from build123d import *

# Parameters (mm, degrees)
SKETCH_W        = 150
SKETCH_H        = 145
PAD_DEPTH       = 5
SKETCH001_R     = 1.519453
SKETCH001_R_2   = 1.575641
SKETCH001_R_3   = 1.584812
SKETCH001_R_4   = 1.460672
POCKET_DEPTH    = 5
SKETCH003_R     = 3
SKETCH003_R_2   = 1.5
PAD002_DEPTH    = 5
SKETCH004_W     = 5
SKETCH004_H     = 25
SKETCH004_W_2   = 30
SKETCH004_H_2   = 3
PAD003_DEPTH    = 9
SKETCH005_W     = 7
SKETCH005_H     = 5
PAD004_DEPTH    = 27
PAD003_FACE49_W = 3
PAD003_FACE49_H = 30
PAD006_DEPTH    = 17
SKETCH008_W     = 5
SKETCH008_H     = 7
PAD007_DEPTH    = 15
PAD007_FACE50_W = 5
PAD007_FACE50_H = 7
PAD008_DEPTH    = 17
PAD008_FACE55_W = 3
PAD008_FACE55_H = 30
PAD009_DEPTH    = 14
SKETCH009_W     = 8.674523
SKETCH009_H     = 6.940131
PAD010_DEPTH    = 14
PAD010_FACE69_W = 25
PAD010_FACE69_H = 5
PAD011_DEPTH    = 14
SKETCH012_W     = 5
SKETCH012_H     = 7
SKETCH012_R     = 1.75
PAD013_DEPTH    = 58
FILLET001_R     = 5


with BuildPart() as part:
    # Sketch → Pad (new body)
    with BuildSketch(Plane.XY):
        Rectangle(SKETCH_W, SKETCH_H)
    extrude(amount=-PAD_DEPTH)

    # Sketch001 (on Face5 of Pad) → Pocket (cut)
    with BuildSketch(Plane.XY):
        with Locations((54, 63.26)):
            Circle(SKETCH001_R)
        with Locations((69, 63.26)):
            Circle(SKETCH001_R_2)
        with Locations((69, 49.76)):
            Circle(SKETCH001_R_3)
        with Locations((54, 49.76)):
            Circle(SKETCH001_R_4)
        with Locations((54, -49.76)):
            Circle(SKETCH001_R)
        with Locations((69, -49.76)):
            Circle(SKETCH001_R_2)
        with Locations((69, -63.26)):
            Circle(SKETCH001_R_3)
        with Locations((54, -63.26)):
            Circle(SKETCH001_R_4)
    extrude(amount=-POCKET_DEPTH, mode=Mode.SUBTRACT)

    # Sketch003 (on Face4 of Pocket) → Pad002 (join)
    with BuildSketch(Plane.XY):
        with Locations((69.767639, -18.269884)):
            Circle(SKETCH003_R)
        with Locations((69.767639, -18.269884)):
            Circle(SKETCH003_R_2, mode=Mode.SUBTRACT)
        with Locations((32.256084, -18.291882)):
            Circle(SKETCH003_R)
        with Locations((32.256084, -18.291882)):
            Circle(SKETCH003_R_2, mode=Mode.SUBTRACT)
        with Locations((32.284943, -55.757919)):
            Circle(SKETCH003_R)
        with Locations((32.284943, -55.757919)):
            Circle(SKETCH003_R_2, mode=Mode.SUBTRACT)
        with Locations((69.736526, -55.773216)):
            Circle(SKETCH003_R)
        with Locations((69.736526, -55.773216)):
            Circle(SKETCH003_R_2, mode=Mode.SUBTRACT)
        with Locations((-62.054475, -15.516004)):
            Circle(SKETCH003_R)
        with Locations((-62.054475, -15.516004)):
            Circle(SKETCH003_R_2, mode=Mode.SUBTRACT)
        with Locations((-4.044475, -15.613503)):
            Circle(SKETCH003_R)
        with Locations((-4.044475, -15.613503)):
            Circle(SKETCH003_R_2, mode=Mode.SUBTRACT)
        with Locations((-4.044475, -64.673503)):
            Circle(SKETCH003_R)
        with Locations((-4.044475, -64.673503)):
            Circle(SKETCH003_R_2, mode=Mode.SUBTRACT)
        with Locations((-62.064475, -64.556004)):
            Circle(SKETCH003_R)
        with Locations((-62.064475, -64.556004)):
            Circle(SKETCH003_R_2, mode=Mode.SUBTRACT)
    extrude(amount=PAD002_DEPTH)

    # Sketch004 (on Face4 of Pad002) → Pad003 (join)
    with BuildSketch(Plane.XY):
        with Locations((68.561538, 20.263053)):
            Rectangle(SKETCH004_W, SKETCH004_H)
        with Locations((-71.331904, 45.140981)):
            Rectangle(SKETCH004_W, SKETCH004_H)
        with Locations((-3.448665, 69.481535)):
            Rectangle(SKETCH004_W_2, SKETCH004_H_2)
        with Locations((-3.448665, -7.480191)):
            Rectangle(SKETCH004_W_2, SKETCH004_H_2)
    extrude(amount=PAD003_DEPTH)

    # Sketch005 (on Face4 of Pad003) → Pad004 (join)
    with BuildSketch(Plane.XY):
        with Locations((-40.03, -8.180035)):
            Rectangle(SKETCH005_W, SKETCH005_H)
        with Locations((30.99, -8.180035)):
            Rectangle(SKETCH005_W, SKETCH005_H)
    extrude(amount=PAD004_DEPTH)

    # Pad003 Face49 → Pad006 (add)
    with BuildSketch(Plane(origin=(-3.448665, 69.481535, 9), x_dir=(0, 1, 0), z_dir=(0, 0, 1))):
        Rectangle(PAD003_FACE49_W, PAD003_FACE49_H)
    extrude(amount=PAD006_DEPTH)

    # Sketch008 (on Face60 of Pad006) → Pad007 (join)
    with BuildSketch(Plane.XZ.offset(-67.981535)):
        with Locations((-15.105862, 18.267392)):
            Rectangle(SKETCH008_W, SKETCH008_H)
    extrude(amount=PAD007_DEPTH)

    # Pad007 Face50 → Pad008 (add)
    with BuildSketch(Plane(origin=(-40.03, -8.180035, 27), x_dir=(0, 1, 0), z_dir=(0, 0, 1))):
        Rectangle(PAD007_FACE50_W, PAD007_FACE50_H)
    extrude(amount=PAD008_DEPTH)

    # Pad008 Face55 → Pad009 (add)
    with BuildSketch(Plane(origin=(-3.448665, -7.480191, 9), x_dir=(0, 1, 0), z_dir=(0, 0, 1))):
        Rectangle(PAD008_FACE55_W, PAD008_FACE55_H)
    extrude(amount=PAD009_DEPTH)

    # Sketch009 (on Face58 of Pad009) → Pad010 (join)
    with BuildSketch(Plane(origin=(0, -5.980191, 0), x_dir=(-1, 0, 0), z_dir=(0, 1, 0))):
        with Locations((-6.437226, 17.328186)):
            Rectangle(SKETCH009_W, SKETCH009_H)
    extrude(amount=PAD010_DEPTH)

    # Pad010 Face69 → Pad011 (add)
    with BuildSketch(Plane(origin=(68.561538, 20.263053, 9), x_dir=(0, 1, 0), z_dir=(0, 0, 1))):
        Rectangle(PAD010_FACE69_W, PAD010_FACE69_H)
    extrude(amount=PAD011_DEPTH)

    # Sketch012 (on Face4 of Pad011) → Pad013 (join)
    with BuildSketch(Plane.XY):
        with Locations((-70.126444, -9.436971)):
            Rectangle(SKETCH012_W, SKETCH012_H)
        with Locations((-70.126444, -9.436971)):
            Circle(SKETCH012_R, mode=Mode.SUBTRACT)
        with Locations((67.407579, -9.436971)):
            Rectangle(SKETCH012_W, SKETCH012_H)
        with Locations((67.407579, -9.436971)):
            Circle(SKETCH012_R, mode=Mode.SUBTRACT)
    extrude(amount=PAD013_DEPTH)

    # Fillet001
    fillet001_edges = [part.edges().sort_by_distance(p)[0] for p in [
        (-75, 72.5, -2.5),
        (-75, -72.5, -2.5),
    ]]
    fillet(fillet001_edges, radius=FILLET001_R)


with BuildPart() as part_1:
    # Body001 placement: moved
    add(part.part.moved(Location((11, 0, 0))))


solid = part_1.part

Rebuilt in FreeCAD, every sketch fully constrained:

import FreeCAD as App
import Part
import Sketcher
Q = App.Units.Quantity


def edges_at(feature, points):
    """Names of the edges that pass closest to the given points."""
    edges = feature.Shape.Edges
    near = lambda p: min(range(len(edges)), key=lambda i: edges[i].distToShape(Part.Vertex(*p))[0])
    return sorted({f"Edge{near(p) + 1}" for p in points})


def add_polygon(sketch, points):
    """Adds a closed chain of lines whose ends are joined by coincident constraints."""
    first, n = sketch.GeometryCount, len(points)
    for a, b in zip(points, points[1:] + points[:1]):
        sketch.addGeometry(Part.LineSegment(App.Vector(*a, 0), App.Vector(*b, 0)), False)
    for i in range(n):
        sketch.addConstraint(Sketcher.Constraint("Coincident", first + i, 2, first + (i + 1) % n, 1))

doc = App.newDocument("Part")
body = doc.addObject("PartDesign::Body", "Body")

# Sketch on XY plane
sketch1 = body.newObject("Sketcher::SketchObject", "Sketch")
sketch1.AttachmentSupport = (doc.getObject("XY_Plane"), [""])
sketch1.MapMode = "FlatFace"
add_polygon(sketch1, [(-75, 72.5), (-75, -72.5), (75, -72.5), (75, 72.5)])  # lines 0-3
sketch1.addConstraint([
    Sketcher.Constraint("Vertical", 0),
    Sketcher.Constraint("Horizontal", 1),
    Sketcher.Constraint("Vertical", 2),
    Sketcher.Constraint("Horizontal", 3),
    Sketcher.Constraint("Symmetric", 0, 2, 2, 2, -1, 1),
    Sketcher.Constraint("DistanceX", 1, 1, 1, 2, Q("150 mm")),
    Sketcher.Constraint("DistanceY", 0, 2, 0, 1, Q("145 mm")),
])
pad1 = body.newObject("PartDesign::Pad", "Pad")
pad1.Profile = sketch1
pad1.Length = 5
pad1.Reversed = True

# Sketch on XY plane
sketch2 = body.newObject("Sketcher::SketchObject", "Sketch001")
sketch2.AttachmentSupport = (doc.getObject("XY_Plane"), [""])
sketch2.MapMode = "FlatFace"
sketch2.addGeometry([
    Part.Circle(App.Vector(54, 63.26, 0), App.Vector(0, 0, 1), 1.519453),  # 0
    Part.Circle(App.Vector(69, 63.26, 0), App.Vector(0, 0, 1), 1.575641),  # 1
    Part.Circle(App.Vector(69, 49.76, 0), App.Vector(0, 0, 1), 1.584812),  # 2
    Part.Circle(App.Vector(54, 49.76, 0), App.Vector(0, 0, 1), 1.460672),  # 3
    Part.Circle(App.Vector(54, -49.76, 0), App.Vector(0, 0, 1), 1.519453),  # 4
    Part.Circle(App.Vector(69, -49.76, 0), App.Vector(0, 0, 1), 1.575641),  # 5
    Part.Circle(App.Vector(69, -63.26, 0), App.Vector(0, 0, 1), 1.584812),  # 6
    Part.Circle(App.Vector(54, -63.26, 0), App.Vector(0, 0, 1), 1.460672),  # 7
], False)
sketch2.addConstraint([
    Sketcher.Constraint("Equal", 0, 4),
    Sketcher.Constraint("Equal", 1, 5),
    Sketcher.Constraint("Equal", 2, 6),
    Sketcher.Constraint("Equal", 3, 7),
    Sketcher.Constraint("Symmetric", 3, 3, 4, 3, -1),
    Sketcher.Constraint("Symmetric", 2, 3, 5, 3, -1),
    Sketcher.Constraint("Symmetric", 1, 3, 6, 3, -1),
    Sketcher.Constraint("Symmetric", 0, 3, 7, 3, -1),
    Sketcher.Constraint("Horizontal", 0, 3, 1, 3),
    Sketcher.Constraint("Horizontal", 2, 3, 3, 3),
    Sketcher.Constraint("Vertical", 1, 3, 2, 3),
    Sketcher.Constraint("Vertical", 0, 3, 3, 3),
    Sketcher.Constraint("DistanceX", -1, 1, 0, 3, Q("54 mm")),
    Sketcher.Constraint("DistanceX", -1, 1, 1, 3, Q("69 mm")),
    Sketcher.Constraint("DistanceY", 2, 3, 1, 3, Q("13.5 mm")),
    Sketcher.Constraint("DistanceY", -1, 1, 0, 3, Q("63.26 mm")),
    Sketcher.Constraint("Diameter", 0, Q("3.038906 mm")),
    Sketcher.Constraint("Diameter", 1, Q("3.151282 mm")),
    Sketcher.Constraint("Diameter", 2, Q("3.169624 mm")),
    Sketcher.Constraint("Diameter", 3, Q("2.921344 mm")),
])
pocket1 = body.newObject("PartDesign::Pocket", "Pocket")
pocket1.Profile = sketch2
pocket1.Length = 5

# Sketch on XY plane
sketch3 = body.newObject("Sketcher::SketchObject", "Sketch002")
sketch3.AttachmentSupport = (doc.getObject("XY_Plane"), [""])
sketch3.MapMode = "FlatFace"
sketch3.addGeometry([
    Part.Circle(App.Vector(69.767639, -18.269884, 0), App.Vector(0, 0, 1), 3),  # 0
    Part.Circle(App.Vector(69.767639, -18.269884, 0), App.Vector(0, 0, 1), 1.5),  # 1
    Part.Circle(App.Vector(32.256084, -18.291882, 0), App.Vector(0, 0, 1), 3),  # 2
    Part.Circle(App.Vector(32.256084, -18.291882, 0), App.Vector(0, 0, 1), 1.5),  # 3
    Part.Circle(App.Vector(32.284943, -55.757919, 0), App.Vector(0, 0, 1), 3),  # 4
    Part.Circle(App.Vector(32.284943, -55.757919, 0), App.Vector(0, 0, 1), 1.5),  # 5
    Part.Circle(App.Vector(69.736526, -55.773216, 0), App.Vector(0, 0, 1), 3),  # 6
    Part.Circle(App.Vector(69.736526, -55.773216, 0), App.Vector(0, 0, 1), 1.5),  # 7
    Part.Circle(App.Vector(-62.054475, -15.516004, 0), App.Vector(0, 0, 1), 3),  # 8
    Part.Circle(App.Vector(-62.054475, -15.516004, 0), App.Vector(0, 0, 1), 1.5),  # 9
    Part.Circle(App.Vector(-4.044475, -15.613503, 0), App.Vector(0, 0, 1), 3),  # 10
    Part.Circle(App.Vector(-4.044475, -15.613503, 0), App.Vector(0, 0, 1), 1.5),  # 11
    Part.Circle(App.Vector(-4.044475, -64.673503, 0), App.Vector(0, 0, 1), 3),  # 12
    Part.Circle(App.Vector(-4.044475, -64.673503, 0), App.Vector(0, 0, 1), 1.5),  # 13
    Part.Circle(App.Vector(-62.064475, -64.556004, 0), App.Vector(0, 0, 1), 3),  # 14
    Part.Circle(App.Vector(-62.064475, -64.556004, 0), App.Vector(0, 0, 1), 1.5),  # 15
], False)
sketch3.addConstraint([
    Sketcher.Constraint("Coincident", 1, 3, 0, 3),
    Sketcher.Constraint("Coincident", 3, 3, 2, 3),
    Sketcher.Constraint("Coincident", 5, 3, 4, 3),
    Sketcher.Constraint("Coincident", 7, 3, 6, 3),
    Sketcher.Constraint("Coincident", 9, 3, 8, 3),
    Sketcher.Constraint("Coincident", 11, 3, 10, 3),
    Sketcher.Constraint("Coincident", 13, 3, 12, 3),
    Sketcher.Constraint("Coincident", 15, 3, 14, 3),
    Sketcher.Constraint("Equal", 0, 2),
    Sketcher.Constraint("Equal", 1, 3),
    Sketcher.Constraint("Equal", 2, 4),
    Sketcher.Constraint("Equal", 3, 5),
    Sketcher.Constraint("Equal", 4, 6),
    Sketcher.Constraint("Equal", 5, 7),
    Sketcher.Constraint("Equal", 6, 8),
    Sketcher.Constraint("Equal", 7, 9),
    Sketcher.Constraint("Equal", 8, 10),
    Sketcher.Constraint("Equal", 9, 11),
    Sketcher.Constraint("Equal", 10, 12),
    Sketcher.Constraint("Equal", 11, 13),
    Sketcher.Constraint("Equal", 12, 14),
    Sketcher.Constraint("Equal", 13, 15),
    Sketcher.Constraint("Vertical", 11, 3, 12, 3),
    Sketcher.Constraint("Diameter", 0, Q("6 mm")),
    Sketcher.Constraint("Diameter", 1, Q("3 mm")),
    Sketcher.Constraint("DistanceX", 8, 3, 10, 3, Q("58.01 mm")),
    Sketcher.Constraint("DistanceY", 12, 3, 10, 3, Q("49.06 mm")),
    Sketcher.Constraint("DistanceX", 14, 3, 8, 3, Q("0.01 mm")),
    Sketcher.Constraint("DistanceY", 14, 3, 8, 3, Q("49.04 mm")),
    Sketcher.Constraint("DistanceY", 10, 3, 8, 3, Q("0.097499 mm")),
    Sketcher.Constraint("DistanceX", -1, 1, 0, 3, Q("69.767639 mm")),
    Sketcher.Constraint("DistanceY", 4, 3, -1, 1, Q("55.757919 mm")),
    Sketcher.Constraint("DistanceX", 2, 3, 4, 3, Q("0.028859 mm")),
    Sketcher.Constraint("DistanceX", 2, 3, 6, 3, Q("37.480442 mm")),
    Sketcher.Constraint("DistanceX", 8, 3, 2, 3, Q("94.310559 mm")),
    Sketcher.Constraint("DistanceY", 2, 3, 8, 3, Q("2.775878 mm")),
    Sketcher.Constraint("DistanceY", 0, 3, 8, 3, Q("2.75388 mm")),
    Sketcher.Constraint("DistanceY", 0, 3, -1, 1, Q("18.269884 mm")),
    Sketcher.Constraint("DistanceX", -1, 1, 2, 3, Q("32.256084 mm")),
    Sketcher.Constraint("DistanceY", 6, 3, -1, 1, Q("55.773216 mm")),
])
pad2 = body.newObject("PartDesign::Pad", "Pad001")
pad2.Profile = sketch3
pad2.Length = 5

# Sketch on XY plane
sketch4 = body.newObject("Sketcher::SketchObject", "Sketch003")
sketch4.AttachmentSupport = (doc.getObject("XY_Plane"), [""])
sketch4.MapMode = "FlatFace"
add_polygon(sketch4, [(66.061538, 32.763053), (66.061538, 7.763053), (71.061538, 7.763053), (71.061538, 32.763053)])  # lines 0-3
add_polygon(sketch4, [(-73.831904, 57.640981), (-73.831904, 32.640981), (-68.831904, 32.640981), (-68.831904, 57.640981)])  # lines 4-7
add_polygon(sketch4, [(-18.448665, 70.981535), (-18.448665, 67.981535), (11.551335, 67.981535), (11.551335, 70.981535)])  # lines 8-11
add_polygon(sketch4, [(-18.448665, -5.980191), (-18.448665, -8.980191), (11.551335, -8.980191), (11.551335, -5.980191)])  # lines 12-15
sketch4.addConstraint([
    Sketcher.Constraint("Vertical", 0),
    Sketcher.Constraint("Horizontal", 1),
    Sketcher.Constraint("Vertical", 2),
    Sketcher.Constraint("Horizontal", 3),
    Sketcher.Constraint("Vertical", 4),
    Sketcher.Constraint("Horizontal", 5),
    Sketcher.Constraint("Vertical", 6),
    Sketcher.Constraint("Horizontal", 7),
    Sketcher.Constraint("Vertical", 8),
    Sketcher.Constraint("Horizontal", 9),
    Sketcher.Constraint("Vertical", 10),
    Sketcher.Constraint("Horizontal", 11),
    Sketcher.Constraint("Vertical", 12),
    Sketcher.Constraint("Horizontal", 13),
    Sketcher.Constraint("Vertical", 14),
    Sketcher.Constraint("Horizontal", 15),
    Sketcher.Constraint("Vertical", 11, 2, 12, 2),
    Sketcher.Constraint("Vertical", 10, 2, 13, 2),
    Sketcher.Constraint("Equal", 3, 5),
    Sketcher.Constraint("Equal", 2, 4),
    Sketcher.Constraint("Equal", 10, 12),
    Sketcher.Constraint("DistanceX", 1, 1, 1, 2, Q("5 mm")),
    Sketcher.Constraint("DistanceX", 9, 1, 9, 2, Q("30 mm")),
    Sketcher.Constraint("DistanceY", 0, 2, 0, 1, Q("25 mm")),
    Sketcher.Constraint("DistanceY", 8, 2, 8, 1, Q("3 mm")),
    Sketcher.Constraint("DistanceX", -1, 1, 0, 2, Q("66.061538 mm")),
    Sketcher.Constraint("DistanceY", -1, 1, 4, 2, Q("32.640981 mm")),
    Sketcher.Constraint("DistanceY", 12, 2, -1, 1, Q("8.980191 mm")),
    Sketcher.Constraint("DistanceX", 4, 2, 3, 2, Q("139.893442 mm")),
    Sketcher.Constraint("DistanceX", 6, 2, 8, 2, Q("50.383239 mm")),
    Sketcher.Constraint("DistanceY", 3, 2, 8, 2, Q("35.218482 mm")),
    Sketcher.Constraint("DistanceY", -1, 1, 0, 2, Q("7.763053 mm")),
])
pad3 = body.newObject("PartDesign::Pad", "Pad002")
pad3.Profile = sketch4
pad3.Length = 9

# Sketch on XY plane
sketch5 = body.newObject("Sketcher::SketchObject", "Sketch004")
sketch5.AttachmentSupport = (doc.getObject("XY_Plane"), [""])
sketch5.MapMode = "FlatFace"
add_polygon(sketch5, [(-43.53, -5.680035), (-43.53, -10.680035), (-36.53, -10.680035), (-36.53, -5.680035)])  # lines 0-3
add_polygon(sketch5, [(27.49, -5.680035), (27.49, -10.680035), (34.49, -10.680035), (34.49, -5.680035)])  # lines 4-7
sketch5.addConstraint([
    Sketcher.Constraint("Vertical", 0),
    Sketcher.Constraint("Horizontal", 1),
    Sketcher.Constraint("Vertical", 2),
    Sketcher.Constraint("Horizontal", 3),
    Sketcher.Constraint("Vertical", 4),
    Sketcher.Constraint("Horizontal", 5),
    Sketcher.Constraint("Vertical", 6),
    Sketcher.Constraint("Horizontal", 7),
    Sketcher.Constraint("Horizontal", 1, 2, 4, 2),
    Sketcher.Constraint("Horizontal", 3, 2, 6, 2),
    Sketcher.Constraint("Equal", 3, 5),
    Sketcher.Constraint("DistanceX", 1, 1, 1, 2, Q("7 mm")),
    Sketcher.Constraint("DistanceY", 0, 2, 0, 1, Q("5 mm")),
    Sketcher.Constraint("DistanceX", 0, 2, -1, 1, Q("43.53 mm")),
    Sketcher.Constraint("DistanceX", -1, 1, 4, 2, Q("27.49 mm")),
    Sketcher.Constraint("DistanceY", 0, 2, -1, 1, Q("10.680035 mm")),
])
pad4 = body.newObject("PartDesign::Pad", "Pad003")
pad4.Profile = sketch5
pad4.Length = 27

# Sketch on XY plane
sketch6 = body.newObject("Sketcher::SketchObject", "Sketch005")
sketch6.AttachmentSupport = (doc.getObject("XY_Plane"), [""])
sketch6.MapMode = "FlatFace"
sketch6.AttachmentOffset = App.Placement(App.Vector(0, 0, 9), App.Rotation())
add_polygon(sketch6, [(-18.448665, 67.981535), (11.551335, 67.981535), (11.551335, 70.981535), (-18.448665, 70.981535)])  # lines 0-3
sketch6.addConstraint([
    Sketcher.Constraint("Horizontal", 0),
    Sketcher.Constraint("Vertical", 1),
    Sketcher.Constraint("Horizontal", 2),
    Sketcher.Constraint("Vertical", 3),
    Sketcher.Constraint("DistanceX", 0, 1, 0, 2, Q("30 mm")),
    Sketcher.Constraint("DistanceY", 1, 1, 1, 2, Q("3 mm")),
    Sketcher.Constraint("DistanceX", -1, 1, 0, 2, Q("11.551335 mm")),
    Sketcher.Constraint("DistanceY", -1, 1, 0, 2, Q("67.981535 mm")),
])
pad5 = body.newObject("PartDesign::Pad", "Pad004")
pad5.Profile = sketch6
pad5.Length = 17

# Sketch on XZ plane
sketch7 = body.newObject("Sketcher::SketchObject", "Sketch006")
sketch7.AttachmentSupport = (doc.getObject("XZ_Plane"), [""])
sketch7.MapMode = "FlatFace"
sketch7.AttachmentOffset = App.Placement(App.Vector(0, 0, -67.981535), App.Rotation())
add_polygon(sketch7, [(-17.605862, 21.767392), (-17.605862, 14.767392), (-12.605862, 14.767392), (-12.605862, 21.767392)])  # lines 0-3
sketch7.addConstraint([
    Sketcher.Constraint("Vertical", 0),
    Sketcher.Constraint("Horizontal", 1),
    Sketcher.Constraint("Vertical", 2),
    Sketcher.Constraint("Horizontal", 3),
    Sketcher.Constraint("DistanceX", 1, 1, 1, 2, Q("5 mm")),
    Sketcher.Constraint("DistanceY", 0, 2, 0, 1, Q("7 mm")),
    Sketcher.Constraint("DistanceX", 0, 2, -1, 1, Q("17.605862 mm")),
    Sketcher.Constraint("DistanceY", -1, 1, 0, 2, Q("14.767392 mm")),
])
pad6 = body.newObject("PartDesign::Pad", "Pad005")
pad6.Profile = sketch7
pad6.Length = 15

# Sketch on XY plane
sketch8 = body.newObject("Sketcher::SketchObject", "Sketch007")
sketch8.AttachmentSupport = (doc.getObject("XY_Plane"), [""])
sketch8.MapMode = "FlatFace"
sketch8.AttachmentOffset = App.Placement(App.Vector(0, 0, 27), App.Rotation())
add_polygon(sketch8, [(-43.53, -10.680035), (-36.53, -10.680035), (-36.53, -5.680035), (-43.53, -5.680035)])  # lines 0-3
sketch8.addConstraint([
    Sketcher.Constraint("Horizontal", 0),
    Sketcher.Constraint("Vertical", 1),
    Sketcher.Constraint("Horizontal", 2),
    Sketcher.Constraint("Vertical", 3),
    Sketcher.Constraint("DistanceX", 0, 1, 0, 2, Q("7 mm")),
    Sketcher.Constraint("DistanceY", 1, 1, 1, 2, Q("5 mm")),
    Sketcher.Constraint("DistanceX", 0, 2, -1, 1, Q("36.53 mm")),
    Sketcher.Constraint("DistanceY", 0, 2, -1, 1, Q("10.680035 mm")),
])
pad7 = body.newObject("PartDesign::Pad", "Pad006")
pad7.Profile = sketch8
pad7.Length = 17

# Sketch on XY plane
sketch9 = body.newObject("Sketcher::SketchObject", "Sketch008")
sketch9.AttachmentSupport = (doc.getObject("XY_Plane"), [""])
sketch9.MapMode = "FlatFace"
sketch9.AttachmentOffset = App.Placement(App.Vector(0, 0, 9), App.Rotation())
add_polygon(sketch9, [(-18.448665, -8.980191), (11.551335, -8.980191), (11.551335, -5.980191), (-18.448665, -5.980191)])  # lines 0-3
sketch9.addConstraint([
    Sketcher.Constraint("Horizontal", 0),
    Sketcher.Constraint("Vertical", 1),
    Sketcher.Constraint("Horizontal", 2),
    Sketcher.Constraint("Vertical", 3),
    Sketcher.Constraint("DistanceX", 0, 1, 0, 2, Q("30 mm")),
    Sketcher.Constraint("DistanceY", 1, 1, 1, 2, Q("3 mm")),
    Sketcher.Constraint("DistanceY", 0, 2, -1, 1, Q("8.980191 mm")),
    Sketcher.Constraint("DistanceX", -1, 1, 0, 2, Q("11.551335 mm")),
])
pad8 = body.newObject("PartDesign::Pad", "Pad007")
pad8.Profile = sketch9
pad8.Length = 14

# Sketch on XZ plane
sketch10 = body.newObject("Sketcher::SketchObject", "Sketch009")
sketch10.AttachmentSupport = (doc.getObject("XZ_Plane"), [""])
sketch10.MapMode = "FlatFace"
sketch10.AttachmentOffset = App.Placement(App.Vector(0, 0, 5.980191), App.Rotation())
add_polygon(sketch10, [(10.774487, 20.798251), (10.774487, 13.858121), (2.099965, 13.858121), (2.099965, 20.798251)])  # lines 0-3
sketch10.addConstraint([
    Sketcher.Constraint("Vertical", 0),
    Sketcher.Constraint("Horizontal", 1),
    Sketcher.Constraint("Vertical", 2),
    Sketcher.Constraint("Horizontal", 3),
    Sketcher.Constraint("DistanceY", 0, 2, 0, 1, Q("6.940131 mm")),
    Sketcher.Constraint("DistanceX", 1, 2, 1, 1, Q("8.674523 mm")),
    Sketcher.Constraint("DistanceY", -1, 1, 0, 2, Q("13.858121 mm")),
    Sketcher.Constraint("DistanceX", -1, 1, 0, 2, Q("10.774487 mm")),
])
pad9 = body.newObject("PartDesign::Pad", "Pad008")
pad9.Profile = sketch10
pad9.Length = 14
pad9.Reversed = True

# Sketch on XY plane
sketch11 = body.newObject("Sketcher::SketchObject", "Sketch010")
sketch11.AttachmentSupport = (doc.getObject("XY_Plane"), [""])
sketch11.MapMode = "FlatFace"
sketch11.AttachmentOffset = App.Placement(App.Vector(0, 0, 9), App.Rotation())
add_polygon(sketch11, [(66.061538, 7.763053), (71.061538, 7.763053), (71.061538, 32.763053), (66.061538, 32.763053)])  # lines 0-3
sketch11.addConstraint([
    Sketcher.Constraint("Horizontal", 0),
    Sketcher.Constraint("Vertical", 1),
    Sketcher.Constraint("Horizontal", 2),
    Sketcher.Constraint("Vertical", 3),
    Sketcher.Constraint("DistanceX", 0, 1, 0, 2, Q("5 mm")),
    Sketcher.Constraint("DistanceY", 1, 1, 1, 2, Q("25 mm")),
    Sketcher.Constraint("DistanceX", -1, 1, 0, 2, Q("71.061538 mm")),
    Sketcher.Constraint("DistanceY", -1, 1, 0, 2, Q("7.763053 mm")),
])
pad10 = body.newObject("PartDesign::Pad", "Pad009")
pad10.Profile = sketch11
pad10.Length = 14

# Sketch on XY plane
sketch12 = body.newObject("Sketcher::SketchObject", "Sketch011")
sketch12.AttachmentSupport = (doc.getObject("XY_Plane"), [""])
sketch12.MapMode = "FlatFace"
add_polygon(sketch12, [(-72.626444, -5.936971), (-72.626444, -12.936971), (-67.626444, -12.936971), (-67.626444, -5.936971)])  # lines 0-3
sketch12.addGeometry(Part.Circle(App.Vector(-70.126444, -9.436971, 0), App.Vector(0, 0, 1), 1.75), False)  # 4
add_polygon(sketch12, [(64.907579, -5.936971), (64.907579, -12.936971), (69.907579, -12.936971), (69.907579, -5.936971)])  # lines 5-8
sketch12.addGeometry(Part.Circle(App.Vector(67.407579, -9.436971, 0), App.Vector(0, 0, 1), 1.75), False)  # 9
sketch12.addConstraint([
    Sketcher.Constraint("Vertical", 0),
    Sketcher.Constraint("Horizontal", 1),
    Sketcher.Constraint("Vertical", 2),
    Sketcher.Constraint("Horizontal", 3),
    Sketcher.Constraint("Vertical", 5),
    Sketcher.Constraint("Horizontal", 6),
    Sketcher.Constraint("Vertical", 7),
    Sketcher.Constraint("Horizontal", 8),
    Sketcher.Constraint("Equal", 4, 9),
    Sketcher.Constraint("Horizontal", 4, 3, 9, 3),
    Sketcher.Constraint("Horizontal", 1, 2, 5, 2),
    Sketcher.Constraint("Horizontal", 3, 2, 7, 2),
    Sketcher.Constraint("Equal", 3, 6),
    Sketcher.Constraint("Diameter", 4, Q("3.5 mm")),
    Sketcher.Constraint("DistanceX", 1, 1, 1, 2, Q("5 mm")),
    Sketcher.Constraint("DistanceY", 0, 2, 0, 1, Q("7 mm")),
    Sketcher.Constraint("DistanceX", 0, 2, 4, 3, Q("2.5 mm")),
    Sketcher.Constraint("DistanceY", 0, 2, 4, 3, Q("3.5 mm")),
    Sketcher.Constraint("DistanceX", 5, 2, 9, 3, Q("2.5 mm")),
    Sketcher.Constraint("DistanceY", 4, 3, -1, 1, Q("9.436971 mm")),
    Sketcher.Constraint("DistanceX", -1, 1, 9, 3, Q("67.407579 mm")),
    Sketcher.Constraint("DistanceX", 4, 3, -1, 1, Q("70.126444 mm")),
])
pad11 = body.newObject("PartDesign::Pad", "Pad010")
pad11.Profile = sketch12
pad11.Length = 58
doc.recompute()

fillet = body.newObject("PartDesign::Fillet", "Fillet")
fillet.Base = (pad11, edges_at(pad11, [(-75, 72.5, -2.5), (-75, -72.5, -2.5)]))
fillet.Radius = 5
body2 = doc.addObject("PartDesign::Body", "Body001")
doc.recompute()

body.Placement = App.Placement(App.Vector(11, 0, 0), App.Rotation(App.Vector(0, 0, 1), 0))
boolean = body2.newObject("PartDesign::Boolean", "Boolean")
boolean.Type = "Fuse"
boolean.addObjects([body])

doc.recompute()
